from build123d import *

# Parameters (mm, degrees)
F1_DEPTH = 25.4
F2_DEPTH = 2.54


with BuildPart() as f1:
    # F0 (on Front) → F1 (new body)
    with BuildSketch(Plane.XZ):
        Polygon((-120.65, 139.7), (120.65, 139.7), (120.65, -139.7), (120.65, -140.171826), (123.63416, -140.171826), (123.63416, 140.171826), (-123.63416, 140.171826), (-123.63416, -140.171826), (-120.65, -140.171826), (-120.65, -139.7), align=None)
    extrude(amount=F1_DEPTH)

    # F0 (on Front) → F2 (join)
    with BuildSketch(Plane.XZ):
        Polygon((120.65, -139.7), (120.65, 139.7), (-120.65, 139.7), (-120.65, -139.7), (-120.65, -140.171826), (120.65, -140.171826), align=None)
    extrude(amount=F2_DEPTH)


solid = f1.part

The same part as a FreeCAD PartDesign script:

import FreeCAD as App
import Part
import Sketcher
Q = App.Units.Quantity

doc = App.newDocument("Part")
params = doc.addObject("Spreadsheet::Sheet", "Params")
for row, (alias, value) in enumerate([
    ("sketch1_width", "9.5 in"),
    ("pad1_length", "1 in"),
    ("sketch2_width", "9.5 in"),
    ("pad2_length", "0.1 in"),
], start=1):
    params.set(f"A{row}", alias)
    params.set(f"B{row}", "=" + value)
    params.setAlias(f"B{row}", alias)

body = doc.addObject("PartDesign::Body", "Body")

# Sketch on XZ plane
sketch1 = body.newObject("Sketcher::SketchObject", "Sketch")
sketch1.AttachmentSupport = (doc.getObject("XZ_Plane"), [""])
sketch1.MapMode = "FlatFace"
sketch1.addGeometry(Part.LineSegment(App.Vector(-120.7, 139.7, 0), App.Vector(120.7, 139.7, 0)), False)
sketch1.addGeometry(Part.LineSegment(App.Vector(120.7, 139.7, 0), App.Vector(120.7, -140.2, 0)), False)
sketch1.addGeometry(Part.LineSegment(App.Vector(120.7, -140.2, 0), App.Vector(123.6, -140.2, 0)), False)
sketch1.addGeometry(Part.LineSegment(App.Vector(123.6, -140.2, 0), App.Vector(123.6, 140.2, 0)), False)
sketch1.addGeometry(Part.LineSegment(App.Vector(123.6, 140.2, 0), App.Vector(-123.6, 140.2, 0)), False)
sketch1.addGeometry(Part.LineSegment(App.Vector(-123.6, 140.2, 0), App.Vector(-123.6, -140.2, 0)), False)
sketch1.addGeometry(Part.LineSegment(App.Vector(-123.6, -140.2, 0), App.Vector(-120.7, -140.2, 0)), False)
sketch1.addGeometry(Part.LineSegment(App.Vector(-120.7, -140.2, 0), App.Vector(-120.7, 139.7, 0)), False)
sketch1.addConstraint(Sketcher.Constraint("Coincident", 0, 2, 1, 1))
sketch1.addConstraint(Sketcher.Constraint("Coincident", 1, 2, 2, 1))
sketch1.addConstraint(Sketcher.Constraint("Coincident", 2, 2, 3, 1))
sketch1.addConstraint(Sketcher.Constraint("Coincident", 3, 2, 4, 1))
sketch1.addConstraint(Sketcher.Constraint("Coincident", 4, 2, 5, 1))
sketch1.addConstraint(Sketcher.Constraint("Coincident", 5, 2, 6, 1))
sketch1.addConstraint(Sketcher.Constraint("Coincident", 6, 2, 7, 1))
sketch1.addConstraint(Sketcher.Constraint("Coincident", 7, 2, 0, 1))
sketch1.addConstraint(Sketcher.Constraint("Horizontal", 0))
sketch1.addConstraint(Sketcher.Constraint("Vertical", 1))
sketch1.addConstraint(Sketcher.Constraint("Horizontal", 2))
sketch1.addConstraint(Sketcher.Constraint("Vertical", 3))
sketch1.addConstraint(Sketcher.Constraint("Horizontal", 4))
sketch1.addConstraint(Sketcher.Constraint("Vertical", 5))
sketch1.addConstraint(Sketcher.Constraint("Horizontal", 6))
sketch1.addConstraint(Sketcher.Constraint("Vertical", 7))
sketch1.addConstraint(Sketcher.Constraint("Symmetric", 2, 2, 4, 2, -1, 1))
sketch1.addConstraint(Sketcher.Constraint("Symmetric", 1, 2, 6, 2, -2))
sketch1.addConstraint(Sketcher.Constraint("DistanceX", 0, 1, 0, 2, Q("9.5 in")))
sketch1.addConstraint(Sketcher.Constraint("DistanceY", -1, 1, 0, 2, Q("5.5 in")))
sketch1.addConstraint(Sketcher.Constraint("DistanceX", 2, 1, 2, 2, Q("2.98416 mm")))
sketch1.addConstraint(Sketcher.Constraint("DistanceY", 3, 1, 3, 2, Q("280.343652 mm")))
sketch1.setExpression("Constraints[18]", "Params.sketch1_width")
pad1 = body.newObject("PartDesign::Pad", "Pad")
pad1.Profile = sketch1
pad1.setExpression("Length", "Params.pad1_length")

# Sketch on XZ plane
sketch2 = body.newObject("Sketcher::SketchObject", "Sketch001")
sketch2.AttachmentSupport = (doc.getObject("XZ_Plane"), [""])
sketch2.MapMode = "FlatFace"
sketch2.addGeometry(Part.LineSegment(App.Vector(121, 140, 0), App.Vector(-121, 140, 0)), False)
sketch2.addGeometry(Part.LineSegment(App.Vector(-121, 140, 0), App.Vector(-121, -140, 0)), False)
sketch2.addGeometry(Part.LineSegment(App.Vector(-121, -140, 0), App.Vector(121, -140, 0)), False)
sketch2.addGeometry(Part.LineSegment(App.Vector(121, -140, 0), App.Vector(121, 140, 0)), False)
sketch2.addConstraint(Sketcher.Constraint("Coincident", 0, 2, 1, 1))
sketch2.addConstraint(Sketcher.Constraint("Coincident", 1, 2, 2, 1))
sketch2.addConstraint(Sketcher.Constraint("Coincident", 2, 2, 3, 1))
sketch2.addConstraint(Sketcher.Constraint("Coincident", 3, 2, 0, 1))
sketch2.addConstraint(Sketcher.Constraint("Horizontal", 0))
sketch2.addConstraint(Sketcher.Constraint("Vertical", 1))
sketch2.addConstraint(Sketcher.Constraint("Horizontal", 2))
sketch2.addConstraint(Sketcher.Constraint("Vertical", 3))
sketch2.addConstraint(Sketcher.Constraint("DistanceX", 0, 2, 0, 1, Q("9.5 in")))
sketch2.addConstraint(Sketcher.Constraint("DistanceY", -1, 1, 0, 2, Q("5.5 in")))
sketch2.addConstraint(Sketcher.Constraint("DistanceX", 0, 2, -1, 1, Q("4.75 in")))
sketch2.addConstraint(Sketcher.Constraint("DistanceY", 1, 2, 1, 1, Q("279.871826 mm")))
sketch2.setExpression("Constraints[8]", "Params.sketch2_width")
pad2 = body.newObject("PartDesign::Pad", "Pad001")
pad2.Profile = sketch2
pad2.setExpression("Length", "Params.pad2_length")

doc.recompute()
